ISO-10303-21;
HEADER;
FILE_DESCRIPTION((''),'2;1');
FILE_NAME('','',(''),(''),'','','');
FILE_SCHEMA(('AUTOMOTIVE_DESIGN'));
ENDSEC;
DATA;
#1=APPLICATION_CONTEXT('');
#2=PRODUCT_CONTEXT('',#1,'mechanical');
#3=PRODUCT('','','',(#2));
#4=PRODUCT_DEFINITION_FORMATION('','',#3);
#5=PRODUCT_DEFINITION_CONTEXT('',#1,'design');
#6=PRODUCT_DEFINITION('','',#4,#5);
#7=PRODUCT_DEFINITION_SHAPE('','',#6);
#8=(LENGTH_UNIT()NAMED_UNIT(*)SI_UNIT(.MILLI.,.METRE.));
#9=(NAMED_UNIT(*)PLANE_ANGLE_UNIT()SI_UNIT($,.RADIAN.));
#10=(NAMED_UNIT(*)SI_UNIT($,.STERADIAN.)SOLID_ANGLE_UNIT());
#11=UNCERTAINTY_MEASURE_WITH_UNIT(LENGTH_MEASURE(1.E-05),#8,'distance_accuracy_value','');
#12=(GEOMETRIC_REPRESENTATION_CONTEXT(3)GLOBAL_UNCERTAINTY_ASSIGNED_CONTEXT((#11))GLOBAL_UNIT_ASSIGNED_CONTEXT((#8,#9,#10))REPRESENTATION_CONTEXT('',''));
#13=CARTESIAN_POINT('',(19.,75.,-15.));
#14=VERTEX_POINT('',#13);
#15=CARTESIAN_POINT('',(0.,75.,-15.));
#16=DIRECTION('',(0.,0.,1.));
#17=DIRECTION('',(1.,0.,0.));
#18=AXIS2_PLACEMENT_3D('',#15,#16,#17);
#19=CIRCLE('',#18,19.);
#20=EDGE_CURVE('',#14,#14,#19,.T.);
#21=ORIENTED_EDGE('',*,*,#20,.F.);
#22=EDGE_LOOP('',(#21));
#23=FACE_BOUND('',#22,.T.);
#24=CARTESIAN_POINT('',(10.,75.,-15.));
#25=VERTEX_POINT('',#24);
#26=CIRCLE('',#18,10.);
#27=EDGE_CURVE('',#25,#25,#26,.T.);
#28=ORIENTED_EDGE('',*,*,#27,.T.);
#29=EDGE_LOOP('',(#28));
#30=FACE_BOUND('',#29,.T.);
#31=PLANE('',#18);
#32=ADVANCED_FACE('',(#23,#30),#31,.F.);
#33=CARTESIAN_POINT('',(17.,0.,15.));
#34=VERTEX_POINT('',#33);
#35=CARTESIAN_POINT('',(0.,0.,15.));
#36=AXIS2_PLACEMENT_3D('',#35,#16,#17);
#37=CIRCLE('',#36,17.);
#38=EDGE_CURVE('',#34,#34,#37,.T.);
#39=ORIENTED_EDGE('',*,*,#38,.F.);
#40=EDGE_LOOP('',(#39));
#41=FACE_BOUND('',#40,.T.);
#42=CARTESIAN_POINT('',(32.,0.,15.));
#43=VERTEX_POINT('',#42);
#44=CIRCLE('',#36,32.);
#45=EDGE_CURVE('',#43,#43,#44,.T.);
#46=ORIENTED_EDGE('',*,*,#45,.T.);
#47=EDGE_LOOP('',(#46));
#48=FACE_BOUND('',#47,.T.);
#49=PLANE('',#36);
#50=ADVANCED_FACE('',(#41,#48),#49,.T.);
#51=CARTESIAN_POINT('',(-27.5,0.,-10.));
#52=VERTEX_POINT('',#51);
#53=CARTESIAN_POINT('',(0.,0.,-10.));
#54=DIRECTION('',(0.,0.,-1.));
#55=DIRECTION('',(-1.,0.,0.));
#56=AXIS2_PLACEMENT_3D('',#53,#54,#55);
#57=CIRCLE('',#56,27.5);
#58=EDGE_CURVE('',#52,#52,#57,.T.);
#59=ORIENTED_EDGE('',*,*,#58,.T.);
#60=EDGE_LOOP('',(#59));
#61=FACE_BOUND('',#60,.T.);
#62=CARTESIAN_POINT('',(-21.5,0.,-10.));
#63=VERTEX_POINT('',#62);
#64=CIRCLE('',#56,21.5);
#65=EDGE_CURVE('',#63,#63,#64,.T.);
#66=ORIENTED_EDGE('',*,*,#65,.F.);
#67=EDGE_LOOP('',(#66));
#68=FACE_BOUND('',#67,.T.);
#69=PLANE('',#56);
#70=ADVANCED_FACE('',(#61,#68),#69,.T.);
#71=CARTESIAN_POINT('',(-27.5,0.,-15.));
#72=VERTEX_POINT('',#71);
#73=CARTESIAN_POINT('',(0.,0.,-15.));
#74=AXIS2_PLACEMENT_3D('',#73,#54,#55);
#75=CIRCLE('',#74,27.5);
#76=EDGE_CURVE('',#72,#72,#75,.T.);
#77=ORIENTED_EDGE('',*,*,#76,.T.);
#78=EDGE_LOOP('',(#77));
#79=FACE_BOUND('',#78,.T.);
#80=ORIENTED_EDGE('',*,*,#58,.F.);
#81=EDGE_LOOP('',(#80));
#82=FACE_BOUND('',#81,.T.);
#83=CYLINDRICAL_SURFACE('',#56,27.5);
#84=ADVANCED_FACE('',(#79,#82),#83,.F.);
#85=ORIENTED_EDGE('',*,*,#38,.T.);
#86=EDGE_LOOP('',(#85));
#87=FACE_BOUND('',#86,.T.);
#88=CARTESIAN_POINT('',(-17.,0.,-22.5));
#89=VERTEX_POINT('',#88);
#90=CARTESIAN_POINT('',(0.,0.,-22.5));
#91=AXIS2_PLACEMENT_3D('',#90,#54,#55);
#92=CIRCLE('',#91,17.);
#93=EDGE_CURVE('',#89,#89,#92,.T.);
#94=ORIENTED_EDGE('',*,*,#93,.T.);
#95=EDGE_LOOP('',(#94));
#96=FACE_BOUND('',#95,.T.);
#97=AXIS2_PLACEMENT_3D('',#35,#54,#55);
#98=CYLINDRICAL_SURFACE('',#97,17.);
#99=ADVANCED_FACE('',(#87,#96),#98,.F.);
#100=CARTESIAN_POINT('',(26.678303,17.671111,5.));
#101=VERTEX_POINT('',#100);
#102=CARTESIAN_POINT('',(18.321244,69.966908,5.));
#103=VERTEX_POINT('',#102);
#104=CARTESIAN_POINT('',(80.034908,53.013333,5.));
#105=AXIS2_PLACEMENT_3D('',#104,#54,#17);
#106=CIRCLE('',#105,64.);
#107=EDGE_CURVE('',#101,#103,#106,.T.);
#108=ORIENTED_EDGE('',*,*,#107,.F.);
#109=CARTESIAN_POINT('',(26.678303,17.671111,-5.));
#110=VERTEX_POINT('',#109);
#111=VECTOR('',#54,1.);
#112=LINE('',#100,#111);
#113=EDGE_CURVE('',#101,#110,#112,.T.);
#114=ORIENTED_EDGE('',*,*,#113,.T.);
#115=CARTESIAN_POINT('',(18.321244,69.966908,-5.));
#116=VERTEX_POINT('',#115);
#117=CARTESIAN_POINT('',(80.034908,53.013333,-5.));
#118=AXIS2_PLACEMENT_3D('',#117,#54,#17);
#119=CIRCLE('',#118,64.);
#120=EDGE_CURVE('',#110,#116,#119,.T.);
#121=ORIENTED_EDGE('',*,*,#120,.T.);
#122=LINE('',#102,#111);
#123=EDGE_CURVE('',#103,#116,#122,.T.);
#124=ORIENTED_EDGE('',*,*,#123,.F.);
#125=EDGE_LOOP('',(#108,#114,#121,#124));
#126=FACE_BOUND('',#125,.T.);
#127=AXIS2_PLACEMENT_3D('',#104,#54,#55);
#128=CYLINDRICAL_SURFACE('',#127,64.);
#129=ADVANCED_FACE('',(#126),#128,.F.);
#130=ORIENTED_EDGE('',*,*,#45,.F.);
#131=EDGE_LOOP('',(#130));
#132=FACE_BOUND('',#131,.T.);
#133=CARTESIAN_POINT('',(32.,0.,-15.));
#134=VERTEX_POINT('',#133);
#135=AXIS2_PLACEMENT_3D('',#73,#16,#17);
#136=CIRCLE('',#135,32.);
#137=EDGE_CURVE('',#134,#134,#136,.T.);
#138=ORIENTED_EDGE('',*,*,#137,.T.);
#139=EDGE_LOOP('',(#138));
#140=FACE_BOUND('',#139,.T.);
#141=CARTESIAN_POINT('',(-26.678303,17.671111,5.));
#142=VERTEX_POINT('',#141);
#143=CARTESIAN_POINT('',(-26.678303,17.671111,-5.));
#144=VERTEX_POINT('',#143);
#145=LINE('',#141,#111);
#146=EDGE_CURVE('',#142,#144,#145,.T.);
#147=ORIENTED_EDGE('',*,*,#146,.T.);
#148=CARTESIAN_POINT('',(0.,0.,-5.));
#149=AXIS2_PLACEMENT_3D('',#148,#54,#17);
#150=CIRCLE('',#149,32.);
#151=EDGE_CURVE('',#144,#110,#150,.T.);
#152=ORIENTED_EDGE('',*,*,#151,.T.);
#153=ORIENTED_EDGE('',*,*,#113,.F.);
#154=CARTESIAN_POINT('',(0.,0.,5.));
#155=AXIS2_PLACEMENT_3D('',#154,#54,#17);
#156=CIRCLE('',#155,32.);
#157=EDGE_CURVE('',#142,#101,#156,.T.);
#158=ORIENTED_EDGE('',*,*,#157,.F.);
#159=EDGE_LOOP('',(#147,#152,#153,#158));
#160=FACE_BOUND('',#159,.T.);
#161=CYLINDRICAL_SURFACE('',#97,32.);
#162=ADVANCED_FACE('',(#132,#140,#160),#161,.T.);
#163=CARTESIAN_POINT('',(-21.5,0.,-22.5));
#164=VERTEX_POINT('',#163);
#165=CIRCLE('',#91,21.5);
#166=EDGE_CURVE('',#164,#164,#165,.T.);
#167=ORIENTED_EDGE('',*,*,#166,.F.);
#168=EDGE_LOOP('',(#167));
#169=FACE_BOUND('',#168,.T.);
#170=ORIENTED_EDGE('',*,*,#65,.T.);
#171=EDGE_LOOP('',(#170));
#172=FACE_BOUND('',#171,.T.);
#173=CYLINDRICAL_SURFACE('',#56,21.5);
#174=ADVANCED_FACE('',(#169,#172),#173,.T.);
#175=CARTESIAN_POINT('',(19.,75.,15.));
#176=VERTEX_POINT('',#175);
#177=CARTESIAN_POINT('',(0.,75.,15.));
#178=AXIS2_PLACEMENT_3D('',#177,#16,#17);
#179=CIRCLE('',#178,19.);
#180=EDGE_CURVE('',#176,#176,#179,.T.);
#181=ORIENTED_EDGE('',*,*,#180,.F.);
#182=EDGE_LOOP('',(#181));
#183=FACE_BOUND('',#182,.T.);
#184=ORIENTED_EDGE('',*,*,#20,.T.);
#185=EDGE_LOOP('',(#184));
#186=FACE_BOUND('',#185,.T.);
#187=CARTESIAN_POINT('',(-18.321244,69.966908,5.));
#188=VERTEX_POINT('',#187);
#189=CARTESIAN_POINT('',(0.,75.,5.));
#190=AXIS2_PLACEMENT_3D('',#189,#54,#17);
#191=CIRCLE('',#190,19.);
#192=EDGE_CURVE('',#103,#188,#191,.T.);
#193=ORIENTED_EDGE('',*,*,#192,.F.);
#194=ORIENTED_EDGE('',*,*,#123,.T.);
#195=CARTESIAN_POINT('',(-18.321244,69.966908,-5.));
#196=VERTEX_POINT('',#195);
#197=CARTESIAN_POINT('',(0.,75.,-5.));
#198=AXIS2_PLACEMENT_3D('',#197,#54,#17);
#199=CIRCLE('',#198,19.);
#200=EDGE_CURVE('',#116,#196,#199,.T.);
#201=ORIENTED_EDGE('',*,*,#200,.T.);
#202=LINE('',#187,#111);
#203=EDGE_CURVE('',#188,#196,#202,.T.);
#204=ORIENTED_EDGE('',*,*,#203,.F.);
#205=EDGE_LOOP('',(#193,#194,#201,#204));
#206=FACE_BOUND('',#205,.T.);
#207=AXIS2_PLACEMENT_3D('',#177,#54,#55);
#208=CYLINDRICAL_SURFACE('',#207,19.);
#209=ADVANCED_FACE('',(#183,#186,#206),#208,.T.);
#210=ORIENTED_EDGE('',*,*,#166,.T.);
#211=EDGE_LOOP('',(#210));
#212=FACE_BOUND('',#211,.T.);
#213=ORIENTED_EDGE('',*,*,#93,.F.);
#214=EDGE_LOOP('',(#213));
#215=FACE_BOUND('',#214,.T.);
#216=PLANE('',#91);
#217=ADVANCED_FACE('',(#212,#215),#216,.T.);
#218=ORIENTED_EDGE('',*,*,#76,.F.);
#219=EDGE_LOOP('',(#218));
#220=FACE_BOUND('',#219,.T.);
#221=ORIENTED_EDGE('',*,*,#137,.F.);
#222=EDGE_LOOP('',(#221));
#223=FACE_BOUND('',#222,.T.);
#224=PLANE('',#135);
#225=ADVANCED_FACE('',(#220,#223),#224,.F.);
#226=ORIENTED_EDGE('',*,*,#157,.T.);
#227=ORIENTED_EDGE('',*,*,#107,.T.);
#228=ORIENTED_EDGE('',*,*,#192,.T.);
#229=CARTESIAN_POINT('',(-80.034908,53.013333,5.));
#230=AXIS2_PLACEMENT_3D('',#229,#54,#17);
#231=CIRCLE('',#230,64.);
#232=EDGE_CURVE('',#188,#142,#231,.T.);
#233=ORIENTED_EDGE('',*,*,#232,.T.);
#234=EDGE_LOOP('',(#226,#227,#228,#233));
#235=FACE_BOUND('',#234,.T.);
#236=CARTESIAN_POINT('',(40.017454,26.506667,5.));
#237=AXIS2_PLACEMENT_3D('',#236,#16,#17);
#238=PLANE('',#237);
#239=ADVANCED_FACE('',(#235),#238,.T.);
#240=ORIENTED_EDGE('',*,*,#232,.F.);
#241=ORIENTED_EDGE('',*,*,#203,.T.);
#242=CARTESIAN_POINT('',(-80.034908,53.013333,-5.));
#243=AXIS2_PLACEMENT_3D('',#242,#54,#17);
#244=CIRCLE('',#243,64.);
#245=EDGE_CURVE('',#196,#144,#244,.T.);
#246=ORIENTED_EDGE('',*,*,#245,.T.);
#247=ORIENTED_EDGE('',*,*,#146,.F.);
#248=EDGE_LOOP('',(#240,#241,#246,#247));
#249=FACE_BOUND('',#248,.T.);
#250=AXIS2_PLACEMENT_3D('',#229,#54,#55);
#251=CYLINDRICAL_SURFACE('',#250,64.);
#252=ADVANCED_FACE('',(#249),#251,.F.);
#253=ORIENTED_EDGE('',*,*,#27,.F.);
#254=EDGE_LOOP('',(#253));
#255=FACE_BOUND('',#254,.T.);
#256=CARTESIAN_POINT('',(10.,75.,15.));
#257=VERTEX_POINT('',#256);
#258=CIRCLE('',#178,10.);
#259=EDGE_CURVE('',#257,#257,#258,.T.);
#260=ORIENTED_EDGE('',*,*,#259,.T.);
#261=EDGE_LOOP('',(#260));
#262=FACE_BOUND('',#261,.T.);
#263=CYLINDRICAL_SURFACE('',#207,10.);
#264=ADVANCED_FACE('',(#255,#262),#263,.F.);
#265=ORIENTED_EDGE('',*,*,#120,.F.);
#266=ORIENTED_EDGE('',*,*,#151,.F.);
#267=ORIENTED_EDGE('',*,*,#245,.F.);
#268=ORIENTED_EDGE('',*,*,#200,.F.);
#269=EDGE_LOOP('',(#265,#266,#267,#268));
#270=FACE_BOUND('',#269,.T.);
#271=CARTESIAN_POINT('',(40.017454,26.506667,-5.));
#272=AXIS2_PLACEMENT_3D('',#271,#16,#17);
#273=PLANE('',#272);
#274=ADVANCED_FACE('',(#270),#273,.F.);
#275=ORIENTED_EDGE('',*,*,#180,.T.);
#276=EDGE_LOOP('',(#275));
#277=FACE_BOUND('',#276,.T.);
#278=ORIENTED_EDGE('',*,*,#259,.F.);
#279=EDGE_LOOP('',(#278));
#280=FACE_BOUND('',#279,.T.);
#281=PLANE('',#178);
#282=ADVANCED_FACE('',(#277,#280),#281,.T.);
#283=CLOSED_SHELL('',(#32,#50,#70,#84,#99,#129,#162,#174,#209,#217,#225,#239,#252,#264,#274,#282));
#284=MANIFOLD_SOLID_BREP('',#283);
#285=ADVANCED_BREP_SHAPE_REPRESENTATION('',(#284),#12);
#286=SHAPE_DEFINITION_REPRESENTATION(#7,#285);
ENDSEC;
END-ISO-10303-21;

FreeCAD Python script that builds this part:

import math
import FreeCAD as App
import Part
import Sketcher

V = App.Vector
Q = App.Units.Quantity

doc = App.newDocument("Part")
body = doc.addObject("PartDesign::Body", "Body")

# Sketch on XY plane
sketch1 = body.newObject("Sketcher::SketchObject", "Sketch")
sketch1.AttachmentSupport = (doc.getObject("XY_Plane"), [""])
sketch1.MapMode = "FlatFace"
sketch1.addGeometry(Part.Circle(V(0, 0, 0), V(0, 0, 1), 32), False)
sketch1.addGeometry(Part.Circle(V(0, 0, 0), V(0, 0, 1), 17), False)
sketch1.addConstraint(Sketcher.Constraint("Coincident", 0, 3, -1, 1))
sketch1.addConstraint(Sketcher.Constraint("Coincident", 1, 3, -1, 1))
sketch1.addConstraint(Sketcher.Constraint("Diameter", 0, Q("64 mm")))
sketch1.addConstraint(Sketcher.Constraint("Diameter", 1, Q("34 mm")))
pad1 = body.newObject("PartDesign::Pad", "Pad")
pad1.Profile = sketch1
pad1.Length = 30
pad1.Midplane = True
body2 = doc.addObject("PartDesign::Body", "Body001")

# Sketch on XY plane
sketch2 = body2.newObject("Sketcher::SketchObject", "Sketch001")
sketch2.AttachmentSupport = (doc.getObject("XY_Plane001"), [""])
sketch2.MapMode = "FlatFace"
sketch2.addGeometry(Part.Circle(V(0, 75, 0), V(0, 0, 1), 19), False)
sketch2.addGeometry(Part.Circle(V(0, 75, 0), V(0, 0, 1), 10), False)
sketch2.addConstraint(Sketcher.Constraint("Coincident", 1, 3, 0, 3))
sketch2.addConstraint(Sketcher.Constraint("PointOnObject", 0, 3, -2))
sketch2.addConstraint(Sketcher.Constraint("Diameter", 0, Q("38 mm")))
sketch2.addConstraint(Sketcher.Constraint("Diameter", 1, Q("20 mm")))
sketch2.addConstraint(Sketcher.Constraint("DistanceY", -1, 1, 0, 3, Q("75 mm")))
pad2 = body2.newObject("PartDesign::Pad", "Pad001")
pad2.Profile = sketch2
pad2.Length = 30
pad2.Midplane = True
body.AllowCompound = True
doc.recompute()

boolean = body.newObject("PartDesign::Boolean", "Boolean")
boolean.Type = "Fuse"
boolean.addObjects([body2])

# Sketch on XY plane
sketch3 = body.newObject("Sketcher::SketchObject", "Sketch002")
sketch3.AttachmentSupport = (doc.getObject("XY_Plane"), [""])
sketch3.MapMode = "FlatFace"
sketch3.addGeometry(Part.ArcOfCircle(Part.Circle(V(0, 0, 0), V(0, 0, 1), 32), math.radians(33.519601), math.radians(146.480399)), False)
sketch3.addGeometry(Part.ArcOfCircle(Part.Circle(V(80.034908, 53.013333, 0), V(0, 0, 1), 64), math.radians(164.639013), math.radians(213.519601)), False)
sketch3.addGeometry(Part.ArcOfCircle(Part.Circle(V(0, 75, 0), V(0, 0, 1), 19), math.radians(-164.639013), math.radians(-15.360987)), False)
sketch3.addGeometry(Part.ArcOfCircle(Part.Circle(V(-80.034908, 53.013333, 0), V(0, 0, 1), 64), math.radians(-33.519601), math.radians(15.360987)), False)
sketch3.addConstraint(Sketcher.Constraint("Tangent", 0, 1, 1, 2))
sketch3.addConstraint(Sketcher.Constraint("Tangent", 1, 1, 2, 2))
sketch3.addConstraint(Sketcher.Constraint("Tangent", 2, 1, 3, 2))
sketch3.addConstraint(Sketcher.Constraint("Tangent", 3, 1, 0, 2))
sketch3.addConstraint(Sketcher.Constraint("Coincident", 0, 3, -1, 1))
sketch3.addConstraint(Sketcher.Constraint("Equal", 1, 3))
sketch3.addConstraint(Sketcher.Constraint("PointOnObject", 2, 3, -2))
sketch3.addConstraint(Sketcher.Constraint("Radius", 0, Q("32 mm")))
sketch3.addConstraint(Sketcher.Constraint("Radius", 1, Q("64 mm")))
sketch3.addConstraint(Sketcher.Constraint("Radius", 2, Q("19 mm")))
sketch3.addConstraint(Sketcher.Constraint("DistanceY", -1, 1, 2, 3, Q("75 mm")))
pad3 = body.newObject("PartDesign::Pad", "Pad002")
pad3.Profile = sketch3
pad3.Length = 10
pad3.Midplane = True

# Sketch on XY plane
sketch4 = body.newObject("Sketcher::SketchObject", "Sketch003")
sketch4.AttachmentSupport = (doc.getObject("XY_Plane"), [""])
sketch4.MapMode = "FlatFace"
sketch4.AttachmentOffset = App.Placement(V(0, 0, -15), App.Rotation())
sketch4.addGeometry(Part.Circle(V(0, 0, 0), V(0, 0, 1), 27.5), False)
sketch4.addGeometry(Part.Circle(V(0, 0, 0), V(0, 0, 1), 21.5), False)
sketch4.addConstraint(Sketcher.Constraint("Coincident", 0, 3, -1, 1))
sketch4.addConstraint(Sketcher.Constraint("Coincident", 1, 3, -1, 1))
sketch4.addConstraint(Sketcher.Constraint("Diameter", 0, Q("55 mm")))
sketch4.addConstraint(Sketcher.Constraint("Diameter", 1, Q("43 mm")))
pocket1 = body.newObject("PartDesign::Pocket", "Pocket")
pocket1.Profile = sketch4
pocket1.Length = 5
pocket1.Reversed = True

# Sketch on XY plane
sketch5 = body.newObject("Sketcher::SketchObject", "Sketch004")
sketch5.AttachmentSupport = (doc.getObject("XY_Plane"), [""])
sketch5.MapMode = "FlatFace"
sketch5.AttachmentOffset = App.Placement(V(0, 0, -15), App.Rotation())
sketch5.addGeometry(Part.Circle(V(0, 0, 0), V(0, 0, 1), 21.5), False)
sketch5.addGeometry(Part.Circle(V(0, 0, 0), V(0, 0, 1), 17), False)
sketch5.addConstraint(Sketcher.Constraint("Coincident", 0, 3, -1, 1))
sketch5.addConstraint(Sketcher.Constraint("Coincident", 1, 3, -1, 1))
sketch5.addConstraint(Sketcher.Constraint("Diameter", 0, Q("43 mm")))
sketch5.addConstraint(Sketcher.Constraint("Diameter", 1, Q("34 mm")))
pad4 = body.newObject("PartDesign::Pad", "Pad003")
pad4.Profile = sketch5
pad4.Length = 15
pad4.Midplane = True

doc.recompute()
